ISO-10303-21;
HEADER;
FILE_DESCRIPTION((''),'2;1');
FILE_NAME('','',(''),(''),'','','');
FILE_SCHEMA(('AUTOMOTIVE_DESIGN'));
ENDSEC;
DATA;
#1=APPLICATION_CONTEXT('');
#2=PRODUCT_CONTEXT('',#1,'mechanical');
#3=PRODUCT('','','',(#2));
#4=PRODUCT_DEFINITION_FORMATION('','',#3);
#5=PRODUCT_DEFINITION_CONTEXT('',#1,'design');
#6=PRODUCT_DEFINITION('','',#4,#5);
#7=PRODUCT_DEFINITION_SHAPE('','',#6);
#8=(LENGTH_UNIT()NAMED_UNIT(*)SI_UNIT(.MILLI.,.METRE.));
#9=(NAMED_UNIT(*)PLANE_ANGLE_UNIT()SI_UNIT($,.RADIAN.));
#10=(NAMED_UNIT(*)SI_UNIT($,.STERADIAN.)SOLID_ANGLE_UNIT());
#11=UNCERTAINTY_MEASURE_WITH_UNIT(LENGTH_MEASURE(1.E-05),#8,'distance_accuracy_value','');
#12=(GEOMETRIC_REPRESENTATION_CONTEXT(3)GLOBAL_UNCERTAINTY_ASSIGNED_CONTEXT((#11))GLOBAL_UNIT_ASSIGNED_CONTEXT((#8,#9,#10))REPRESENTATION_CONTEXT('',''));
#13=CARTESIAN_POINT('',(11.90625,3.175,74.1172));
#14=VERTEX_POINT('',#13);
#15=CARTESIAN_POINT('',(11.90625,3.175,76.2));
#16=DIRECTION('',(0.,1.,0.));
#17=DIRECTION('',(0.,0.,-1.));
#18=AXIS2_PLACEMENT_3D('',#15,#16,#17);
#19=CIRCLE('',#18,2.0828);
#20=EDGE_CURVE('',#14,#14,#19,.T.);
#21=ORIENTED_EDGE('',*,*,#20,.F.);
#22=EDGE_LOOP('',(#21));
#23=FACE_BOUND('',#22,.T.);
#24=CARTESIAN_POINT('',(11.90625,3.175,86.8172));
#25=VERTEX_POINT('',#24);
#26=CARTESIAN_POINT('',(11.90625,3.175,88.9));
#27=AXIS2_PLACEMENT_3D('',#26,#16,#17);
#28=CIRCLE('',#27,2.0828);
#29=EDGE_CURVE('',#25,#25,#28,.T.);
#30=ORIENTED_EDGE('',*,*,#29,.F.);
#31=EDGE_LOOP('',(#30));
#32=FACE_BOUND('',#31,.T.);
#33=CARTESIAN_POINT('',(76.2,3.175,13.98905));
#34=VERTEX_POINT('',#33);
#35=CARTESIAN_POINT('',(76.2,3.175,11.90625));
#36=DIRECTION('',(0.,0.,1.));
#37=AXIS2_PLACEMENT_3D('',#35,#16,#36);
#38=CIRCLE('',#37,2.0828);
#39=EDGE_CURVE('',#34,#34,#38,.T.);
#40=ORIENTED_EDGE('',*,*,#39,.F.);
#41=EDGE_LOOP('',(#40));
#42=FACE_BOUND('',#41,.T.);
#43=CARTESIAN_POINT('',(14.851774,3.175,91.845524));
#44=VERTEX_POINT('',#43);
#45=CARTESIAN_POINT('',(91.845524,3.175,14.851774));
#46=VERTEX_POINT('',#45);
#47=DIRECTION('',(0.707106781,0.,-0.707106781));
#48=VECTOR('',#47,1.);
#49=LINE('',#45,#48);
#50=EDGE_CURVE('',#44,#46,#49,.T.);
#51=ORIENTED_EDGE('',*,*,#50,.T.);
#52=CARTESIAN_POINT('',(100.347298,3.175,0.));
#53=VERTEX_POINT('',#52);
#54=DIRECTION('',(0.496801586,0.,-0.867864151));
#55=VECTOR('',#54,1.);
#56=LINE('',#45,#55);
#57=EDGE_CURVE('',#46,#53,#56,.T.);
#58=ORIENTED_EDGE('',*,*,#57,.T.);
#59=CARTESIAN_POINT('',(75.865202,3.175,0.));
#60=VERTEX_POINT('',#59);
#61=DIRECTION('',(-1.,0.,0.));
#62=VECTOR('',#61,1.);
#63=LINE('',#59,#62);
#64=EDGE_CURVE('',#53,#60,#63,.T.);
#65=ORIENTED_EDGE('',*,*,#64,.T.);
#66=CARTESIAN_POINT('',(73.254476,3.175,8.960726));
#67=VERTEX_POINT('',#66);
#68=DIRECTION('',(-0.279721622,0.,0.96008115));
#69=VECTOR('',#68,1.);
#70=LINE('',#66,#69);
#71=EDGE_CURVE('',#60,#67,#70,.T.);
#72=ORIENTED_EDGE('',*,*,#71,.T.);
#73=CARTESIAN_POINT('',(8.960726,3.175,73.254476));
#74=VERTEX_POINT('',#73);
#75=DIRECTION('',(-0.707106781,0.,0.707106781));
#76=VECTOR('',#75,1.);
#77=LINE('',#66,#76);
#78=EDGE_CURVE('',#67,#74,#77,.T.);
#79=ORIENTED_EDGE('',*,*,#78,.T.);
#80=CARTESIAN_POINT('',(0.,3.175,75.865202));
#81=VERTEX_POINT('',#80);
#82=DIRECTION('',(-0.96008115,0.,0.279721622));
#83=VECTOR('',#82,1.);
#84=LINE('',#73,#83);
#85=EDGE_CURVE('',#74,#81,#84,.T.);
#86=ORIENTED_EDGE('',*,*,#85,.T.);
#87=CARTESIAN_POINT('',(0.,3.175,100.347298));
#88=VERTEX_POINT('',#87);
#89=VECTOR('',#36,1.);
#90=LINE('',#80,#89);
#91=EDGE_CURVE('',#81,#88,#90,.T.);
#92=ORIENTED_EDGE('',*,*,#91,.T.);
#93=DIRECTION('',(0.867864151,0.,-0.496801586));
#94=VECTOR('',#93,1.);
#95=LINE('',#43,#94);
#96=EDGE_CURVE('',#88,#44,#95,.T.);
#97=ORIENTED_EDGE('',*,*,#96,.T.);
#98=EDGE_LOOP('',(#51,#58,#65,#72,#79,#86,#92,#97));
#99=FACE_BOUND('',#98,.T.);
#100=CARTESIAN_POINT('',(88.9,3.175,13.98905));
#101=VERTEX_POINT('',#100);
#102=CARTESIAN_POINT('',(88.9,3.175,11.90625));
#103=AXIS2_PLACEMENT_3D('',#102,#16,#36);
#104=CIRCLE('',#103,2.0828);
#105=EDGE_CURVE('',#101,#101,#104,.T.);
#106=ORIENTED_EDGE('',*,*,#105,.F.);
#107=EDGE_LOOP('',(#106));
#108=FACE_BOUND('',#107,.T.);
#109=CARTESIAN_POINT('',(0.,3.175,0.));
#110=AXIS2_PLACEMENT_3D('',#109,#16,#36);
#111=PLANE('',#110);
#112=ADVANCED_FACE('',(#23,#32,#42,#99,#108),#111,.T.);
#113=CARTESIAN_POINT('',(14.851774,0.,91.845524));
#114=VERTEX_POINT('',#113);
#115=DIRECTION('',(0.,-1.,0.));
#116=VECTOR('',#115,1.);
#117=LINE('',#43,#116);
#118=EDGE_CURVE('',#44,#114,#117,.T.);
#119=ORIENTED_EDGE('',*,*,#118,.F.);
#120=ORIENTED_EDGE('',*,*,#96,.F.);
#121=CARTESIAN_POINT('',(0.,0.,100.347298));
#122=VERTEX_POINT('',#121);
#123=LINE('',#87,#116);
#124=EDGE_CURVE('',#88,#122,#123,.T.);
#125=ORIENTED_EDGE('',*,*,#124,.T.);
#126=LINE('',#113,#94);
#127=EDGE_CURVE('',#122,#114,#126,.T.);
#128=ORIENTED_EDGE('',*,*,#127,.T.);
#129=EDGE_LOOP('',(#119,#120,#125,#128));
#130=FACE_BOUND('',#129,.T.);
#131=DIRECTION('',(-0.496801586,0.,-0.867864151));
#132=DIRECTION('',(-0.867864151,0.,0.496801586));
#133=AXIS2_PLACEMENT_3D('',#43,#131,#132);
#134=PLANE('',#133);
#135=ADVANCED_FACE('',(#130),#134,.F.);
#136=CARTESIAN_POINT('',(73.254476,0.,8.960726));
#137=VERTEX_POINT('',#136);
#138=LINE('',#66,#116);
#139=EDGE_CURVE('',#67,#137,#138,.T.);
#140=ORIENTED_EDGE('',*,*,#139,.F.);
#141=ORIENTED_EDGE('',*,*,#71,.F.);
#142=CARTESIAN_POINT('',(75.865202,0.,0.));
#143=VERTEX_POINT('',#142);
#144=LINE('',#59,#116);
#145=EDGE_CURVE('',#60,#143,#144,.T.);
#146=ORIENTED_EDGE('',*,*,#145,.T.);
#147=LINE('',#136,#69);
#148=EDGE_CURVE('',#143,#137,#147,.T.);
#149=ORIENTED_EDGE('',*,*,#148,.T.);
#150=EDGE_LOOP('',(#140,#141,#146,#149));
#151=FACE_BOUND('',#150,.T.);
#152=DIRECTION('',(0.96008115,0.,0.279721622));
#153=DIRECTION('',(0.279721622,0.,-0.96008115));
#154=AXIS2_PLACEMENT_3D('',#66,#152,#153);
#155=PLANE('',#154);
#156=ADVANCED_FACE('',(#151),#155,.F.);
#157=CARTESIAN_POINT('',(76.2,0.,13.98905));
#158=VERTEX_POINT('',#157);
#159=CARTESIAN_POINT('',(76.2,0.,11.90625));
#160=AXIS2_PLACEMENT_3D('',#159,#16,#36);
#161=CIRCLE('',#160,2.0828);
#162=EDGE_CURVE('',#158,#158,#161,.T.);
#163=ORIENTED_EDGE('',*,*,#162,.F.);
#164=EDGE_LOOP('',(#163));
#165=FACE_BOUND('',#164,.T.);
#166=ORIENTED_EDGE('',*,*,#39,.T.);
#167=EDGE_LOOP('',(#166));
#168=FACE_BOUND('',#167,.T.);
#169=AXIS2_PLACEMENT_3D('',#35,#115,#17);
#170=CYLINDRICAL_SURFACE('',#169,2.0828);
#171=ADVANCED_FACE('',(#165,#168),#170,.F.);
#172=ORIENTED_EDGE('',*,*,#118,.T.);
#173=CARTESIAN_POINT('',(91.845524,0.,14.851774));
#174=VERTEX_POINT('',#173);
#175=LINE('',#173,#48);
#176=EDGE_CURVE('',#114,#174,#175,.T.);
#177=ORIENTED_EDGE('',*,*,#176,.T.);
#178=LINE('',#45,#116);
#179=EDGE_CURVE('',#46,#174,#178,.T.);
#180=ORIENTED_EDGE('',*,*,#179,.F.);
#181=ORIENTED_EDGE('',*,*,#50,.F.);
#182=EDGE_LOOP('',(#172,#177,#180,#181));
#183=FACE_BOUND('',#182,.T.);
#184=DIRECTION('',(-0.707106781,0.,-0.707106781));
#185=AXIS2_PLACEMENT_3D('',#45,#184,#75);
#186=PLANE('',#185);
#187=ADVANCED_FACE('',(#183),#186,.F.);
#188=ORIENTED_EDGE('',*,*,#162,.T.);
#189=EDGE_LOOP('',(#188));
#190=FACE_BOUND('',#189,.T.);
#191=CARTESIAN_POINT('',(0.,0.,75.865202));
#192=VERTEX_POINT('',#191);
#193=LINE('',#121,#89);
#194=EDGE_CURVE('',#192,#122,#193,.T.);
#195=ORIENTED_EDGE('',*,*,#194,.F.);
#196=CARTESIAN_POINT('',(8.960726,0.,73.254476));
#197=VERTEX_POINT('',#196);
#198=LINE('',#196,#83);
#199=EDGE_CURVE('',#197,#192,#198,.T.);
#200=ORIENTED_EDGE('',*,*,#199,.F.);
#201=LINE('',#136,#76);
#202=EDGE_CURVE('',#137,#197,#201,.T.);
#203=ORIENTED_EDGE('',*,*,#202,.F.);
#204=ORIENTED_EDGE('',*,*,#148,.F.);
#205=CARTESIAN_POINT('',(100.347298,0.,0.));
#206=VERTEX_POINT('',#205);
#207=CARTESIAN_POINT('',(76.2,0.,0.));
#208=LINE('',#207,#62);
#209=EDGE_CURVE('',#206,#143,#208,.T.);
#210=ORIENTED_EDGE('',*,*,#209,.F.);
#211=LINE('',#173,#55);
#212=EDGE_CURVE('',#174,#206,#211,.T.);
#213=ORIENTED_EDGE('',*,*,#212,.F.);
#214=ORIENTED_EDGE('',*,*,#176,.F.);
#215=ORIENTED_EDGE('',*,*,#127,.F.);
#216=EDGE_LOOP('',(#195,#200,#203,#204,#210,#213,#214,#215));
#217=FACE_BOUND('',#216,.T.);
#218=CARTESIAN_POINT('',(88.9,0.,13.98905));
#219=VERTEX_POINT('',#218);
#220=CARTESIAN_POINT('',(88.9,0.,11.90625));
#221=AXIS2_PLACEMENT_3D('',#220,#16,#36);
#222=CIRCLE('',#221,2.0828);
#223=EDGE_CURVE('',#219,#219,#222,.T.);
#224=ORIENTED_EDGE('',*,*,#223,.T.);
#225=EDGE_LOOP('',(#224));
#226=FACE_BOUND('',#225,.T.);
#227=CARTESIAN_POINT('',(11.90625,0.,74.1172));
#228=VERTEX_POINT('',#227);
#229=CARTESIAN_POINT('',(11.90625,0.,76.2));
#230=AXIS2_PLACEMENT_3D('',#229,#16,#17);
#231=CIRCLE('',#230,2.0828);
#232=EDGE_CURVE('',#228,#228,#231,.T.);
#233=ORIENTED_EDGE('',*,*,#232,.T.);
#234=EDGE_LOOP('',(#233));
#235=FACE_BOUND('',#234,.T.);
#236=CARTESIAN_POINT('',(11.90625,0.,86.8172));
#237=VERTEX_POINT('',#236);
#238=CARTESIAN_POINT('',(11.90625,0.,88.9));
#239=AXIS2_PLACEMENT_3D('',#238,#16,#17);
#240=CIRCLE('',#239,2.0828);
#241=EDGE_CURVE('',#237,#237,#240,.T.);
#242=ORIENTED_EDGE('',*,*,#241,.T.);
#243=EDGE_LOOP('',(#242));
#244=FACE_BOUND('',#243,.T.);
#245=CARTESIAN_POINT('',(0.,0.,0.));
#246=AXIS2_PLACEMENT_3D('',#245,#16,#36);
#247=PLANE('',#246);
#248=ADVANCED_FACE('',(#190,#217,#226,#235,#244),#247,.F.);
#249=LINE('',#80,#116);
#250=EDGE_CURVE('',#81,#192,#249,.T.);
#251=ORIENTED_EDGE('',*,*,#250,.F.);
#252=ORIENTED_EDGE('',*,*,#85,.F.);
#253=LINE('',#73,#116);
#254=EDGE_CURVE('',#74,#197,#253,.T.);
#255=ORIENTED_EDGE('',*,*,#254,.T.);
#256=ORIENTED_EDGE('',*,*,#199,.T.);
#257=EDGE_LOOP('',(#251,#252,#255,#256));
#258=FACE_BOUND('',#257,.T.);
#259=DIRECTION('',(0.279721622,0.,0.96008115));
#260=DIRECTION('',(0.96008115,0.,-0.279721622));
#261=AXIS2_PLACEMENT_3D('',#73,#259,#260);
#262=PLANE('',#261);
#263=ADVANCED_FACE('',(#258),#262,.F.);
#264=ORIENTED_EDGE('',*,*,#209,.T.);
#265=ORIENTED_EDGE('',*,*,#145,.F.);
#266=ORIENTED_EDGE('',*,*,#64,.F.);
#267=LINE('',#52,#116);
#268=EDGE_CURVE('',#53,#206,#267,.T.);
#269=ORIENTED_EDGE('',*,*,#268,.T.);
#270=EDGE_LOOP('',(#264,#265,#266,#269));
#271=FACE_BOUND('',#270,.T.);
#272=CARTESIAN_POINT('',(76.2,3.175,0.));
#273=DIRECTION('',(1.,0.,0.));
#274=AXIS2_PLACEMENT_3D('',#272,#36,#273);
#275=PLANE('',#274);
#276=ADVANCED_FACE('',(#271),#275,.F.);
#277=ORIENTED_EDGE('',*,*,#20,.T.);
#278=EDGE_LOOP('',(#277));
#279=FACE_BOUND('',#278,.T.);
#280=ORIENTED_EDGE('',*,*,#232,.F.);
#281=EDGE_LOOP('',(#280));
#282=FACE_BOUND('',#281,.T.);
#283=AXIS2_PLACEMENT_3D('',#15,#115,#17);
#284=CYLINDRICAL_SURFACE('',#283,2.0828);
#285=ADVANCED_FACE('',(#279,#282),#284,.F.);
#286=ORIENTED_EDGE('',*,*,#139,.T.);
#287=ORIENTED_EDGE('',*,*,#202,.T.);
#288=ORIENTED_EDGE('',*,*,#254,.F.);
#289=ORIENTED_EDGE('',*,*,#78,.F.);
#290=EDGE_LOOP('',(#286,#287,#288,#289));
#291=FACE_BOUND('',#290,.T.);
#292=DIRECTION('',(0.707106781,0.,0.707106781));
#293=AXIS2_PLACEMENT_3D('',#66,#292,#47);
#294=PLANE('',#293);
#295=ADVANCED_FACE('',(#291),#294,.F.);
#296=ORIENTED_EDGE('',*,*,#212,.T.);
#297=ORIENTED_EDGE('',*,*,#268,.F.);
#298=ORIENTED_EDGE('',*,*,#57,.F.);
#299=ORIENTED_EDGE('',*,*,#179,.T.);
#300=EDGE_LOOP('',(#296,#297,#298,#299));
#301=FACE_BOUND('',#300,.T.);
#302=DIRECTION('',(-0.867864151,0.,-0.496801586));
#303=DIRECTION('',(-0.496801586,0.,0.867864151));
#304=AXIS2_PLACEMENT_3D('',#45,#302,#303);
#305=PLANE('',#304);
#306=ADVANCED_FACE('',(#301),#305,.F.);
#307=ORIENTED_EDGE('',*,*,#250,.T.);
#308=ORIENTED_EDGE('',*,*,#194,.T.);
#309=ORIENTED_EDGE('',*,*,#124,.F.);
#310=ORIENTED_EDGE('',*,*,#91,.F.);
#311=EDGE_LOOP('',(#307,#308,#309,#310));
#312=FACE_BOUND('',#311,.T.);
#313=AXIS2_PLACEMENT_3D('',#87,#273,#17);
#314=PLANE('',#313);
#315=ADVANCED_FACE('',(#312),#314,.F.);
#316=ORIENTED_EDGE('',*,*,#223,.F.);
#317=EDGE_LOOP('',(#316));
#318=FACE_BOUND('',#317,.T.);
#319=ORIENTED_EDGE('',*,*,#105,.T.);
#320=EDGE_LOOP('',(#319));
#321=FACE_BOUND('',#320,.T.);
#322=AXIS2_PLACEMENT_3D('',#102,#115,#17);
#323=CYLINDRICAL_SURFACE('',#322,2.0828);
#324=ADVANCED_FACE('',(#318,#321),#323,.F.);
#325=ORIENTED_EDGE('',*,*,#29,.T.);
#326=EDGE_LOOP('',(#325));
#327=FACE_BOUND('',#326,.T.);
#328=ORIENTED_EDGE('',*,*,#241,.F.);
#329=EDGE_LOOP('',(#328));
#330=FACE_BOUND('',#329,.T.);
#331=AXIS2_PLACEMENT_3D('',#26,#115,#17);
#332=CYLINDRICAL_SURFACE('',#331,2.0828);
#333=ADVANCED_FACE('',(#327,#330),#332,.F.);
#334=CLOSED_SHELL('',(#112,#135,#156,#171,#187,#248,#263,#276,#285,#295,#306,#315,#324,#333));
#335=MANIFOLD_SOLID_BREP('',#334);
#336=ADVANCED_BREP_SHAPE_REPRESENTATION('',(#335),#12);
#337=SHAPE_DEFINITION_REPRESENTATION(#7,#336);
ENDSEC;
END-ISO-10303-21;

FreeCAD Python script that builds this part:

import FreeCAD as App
import Part
import Sketcher

V = App.Vector
Q = App.Units.Quantity


def add_polygon(sketch, points):
    """Adds a closed chain of lines whose ends are joined by coincident constraints."""
    first, n = sketch.GeometryCount, len(points)
    for a, b in zip(points, points[1:] + points[:1]):
        sketch.addGeometry(Part.LineSegment(App.Vector(*a, 0), App.Vector(*b, 0)), False)
    for i in range(n):
        sketch.addConstraint(Sketcher.Constraint("Coincident", first + i, 2, first + (i + 1) % n, 1))

doc = App.newDocument("Part")
body = doc.addObject("PartDesign::Body", "Body")

sketch1 = body.newObject("Sketcher::SketchObject", "Sketch")
sketch1.AttachmentSupport = (doc.getObject("XZ_Plane"), [""])
sketch1.MapMode = "FlatFace"
add_polygon(sketch1, [(100.3, 0), (75.9, 0), (73.3, 9), (9, 73.3), (0, 75.9), (0, 100.3), (14.9, 91.8), (91.8, 14.9)])
sketch1.addGeometry(Part.Circle(V(11.9, 88.9, 0), V(0, 0, 1), 2.1), False)
sketch1.addGeometry(Part.Circle(V(11.9, 76.2, 0), V(0, 0, 1), 2.1), False)
sketch1.addGeometry(Part.Circle(V(88.9, 11.9, 0), V(0, 0, 1), 2.1), False)
sketch1.addGeometry(Part.Circle(V(76.2, 11.9, 0), V(0, 0, 1), 2.1), False)
sketch1.addConstraint([
    Sketcher.Constraint("Horizontal", 0),
    Sketcher.Constraint("Vertical", 4),
    Sketcher.Constraint("Equal", 8, 9),
    Sketcher.Constraint("Equal", 9, 10),
    Sketcher.Constraint("Equal", 10, 11),
    Sketcher.Constraint("PointOnObject", 0, 2, -1),
    Sketcher.Constraint("PointOnObject", 3, 2, -2),
    Sketcher.Constraint("Parallel", 2, 6),
    Sketcher.Constraint("Horizontal", 10, 3, 11, 3),
    Sketcher.Constraint("Vertical", 8, 3, 9, 3),
    Sketcher.Constraint("Equal", 0, 4),
    Sketcher.Constraint("Equal", 1, 3),
    Sketcher.Constraint("Equal", 5, 7),
    Sketcher.Constraint("Diameter", 8, Q("0.164 in")),
    Sketcher.Constraint("DistanceY", -1, 1, 9, 3, Q("3 in")),
    Sketcher.Constraint("DistanceX", -1, 1, 11, 3, Q("3 in")),
    Sketcher.Constraint("Angle", 2, Q("135 deg")),
    Sketcher.Constraint("DistanceY", -1, 1, 8, 3, Q("3.5 in")),
    Sketcher.Constraint("DistanceX", -1, 1, 10, 3, Q("3.5 in")),
    Sketcher.Constraint("DistanceX", -1, 1, 8, 3, Q("0.46875 in")),
    Sketcher.Constraint("DistanceY", -1, 1, 10, 3, Q("0.46875 in")),
    Sketcher.Constraint("DistanceX", 2, 2, 1, 2, Q("2.53125 in")),
    Sketcher.Constraint("Distance", 1, 9.333301),
    Sketcher.Constraint("DistanceX", -1, 1, 0, 2, 75.865202),
    Sketcher.Constraint("DistanceY", -1, 1, 3, 2, 75.865202),
    Sketcher.Constraint("DistanceY", -1, 1, 4, 2, 100.347298),
    Sketcher.Constraint("DistanceX", 2, 2, 5, 2, 5.891048),
    Sketcher.Constraint("DistanceY", 2, 2, 5, 2, 18.591048),
])
pad1 = body.newObject("PartDesign::Pad", "Pad")
pad1.Profile = sketch1
pad1.Length = Q("0.125 in")
pad1.Reversed = True

doc.recompute()
